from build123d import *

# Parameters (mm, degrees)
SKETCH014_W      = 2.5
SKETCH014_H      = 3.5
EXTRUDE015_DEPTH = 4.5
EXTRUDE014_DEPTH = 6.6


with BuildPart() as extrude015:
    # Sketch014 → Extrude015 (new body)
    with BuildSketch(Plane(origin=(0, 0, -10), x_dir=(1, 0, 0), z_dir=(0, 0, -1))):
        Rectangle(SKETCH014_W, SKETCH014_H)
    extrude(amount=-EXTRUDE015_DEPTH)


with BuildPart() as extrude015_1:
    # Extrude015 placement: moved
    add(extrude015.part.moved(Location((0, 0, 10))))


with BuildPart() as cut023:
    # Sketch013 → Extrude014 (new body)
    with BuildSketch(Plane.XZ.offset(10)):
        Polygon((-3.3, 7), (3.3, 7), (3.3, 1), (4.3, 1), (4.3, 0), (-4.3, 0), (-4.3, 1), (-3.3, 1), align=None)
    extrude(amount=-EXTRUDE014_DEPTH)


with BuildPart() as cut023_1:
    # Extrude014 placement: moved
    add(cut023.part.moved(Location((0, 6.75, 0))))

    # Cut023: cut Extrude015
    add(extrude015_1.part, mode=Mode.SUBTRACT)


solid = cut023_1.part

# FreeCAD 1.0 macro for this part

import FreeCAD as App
import Part
import Sketcher
Q = App.Units.Quantity


def add_polygon(sketch, points):
    """Adds a closed chain of lines whose ends are joined by coincident constraints."""
    first, n = sketch.GeometryCount, len(points)
    for a, b in zip(points, points[1:] + points[:1]):
        sketch.addGeometry(Part.LineSegment(App.Vector(*a, 0), App.Vector(*b, 0)), False)
    for i in range(n):
        sketch.addConstraint(Sketcher.Constraint("Coincident", first + i, 2, first + (i + 1) % n, 1))

doc = App.newDocument("Part")
body = doc.addObject("PartDesign::Body", "Body")

# Sketch on XY plane
sketch1 = body.newObject("Sketcher::SketchObject", "Sketch")
sketch1.AttachmentSupport = (doc.getObject("XY_Plane"), [""])
sketch1.MapMode = "FlatFace"
sketch1.AttachmentOffset = App.Placement(App.Vector(0, 0, -10), App.Rotation())
add_polygon(sketch1, [(-1.2, -1.8), (-1.2, 1.8), (1.2, 1.8), (1.2, -1.8)])  # lines 0-3
sketch1.addConstraint(Sketcher.Constraint("Vertical", 0))
sketch1.addConstraint(Sketcher.Constraint("Horizontal", 1))
sketch1.addConstraint(Sketcher.Constraint("Vertical", 2))
sketch1.addConstraint(Sketcher.Constraint("Horizontal", 3))
sketch1.addConstraint(Sketcher.Constraint("Symmetric", 0, 2, 2, 2, -1, 1))
sketch1.addConstraint(Sketcher.Constraint("DistanceX", 1, 1, 1, 2, Q("2.5 mm")))
sketch1.addConstraint(Sketcher.Constraint("DistanceY", 0, 1, 0, 2, Q("3.5 mm")))
pad1 = body.newObject("PartDesign::Pad", "Pad")
pad1.Profile = sketch1
pad1.Length = 4.5
body2 = doc.addObject("PartDesign::Body", "Body001")
doc.recompute()

body.Placement = App.Placement(App.Vector(0, 0, 10), App.Rotation(App.Vector(0, 0, 1), 0))
boolean = body2.newObject("PartDesign::Boolean", "Boolean")
boolean.Type = "Fuse"
boolean.addObjects([body])
body3 = doc.addObject("PartDesign::Body", "Body002")

# Sketch on XZ plane
sketch2 = body3.newObject("Sketcher::SketchObject", "Sketch001")
sketch2.AttachmentSupport = (doc.getObject("XZ_Plane002"), [""])
sketch2.MapMode = "FlatFace"
sketch2.AttachmentOffset = App.Placement(App.Vector(0, 0, 10), App.Rotation())
add_polygon(sketch2, [(3.3, 7), (-3.3, 7), (-3.3, 1), (-4.3, 1), (-4.3, 0), (4.3, 0), (4.3, 1), (3.3, 1)])  # lines 0-7
sketch2.addConstraint(Sketcher.Constraint("Horizontal", 0))
sketch2.addConstraint(Sketcher.Constraint("Vertical", 1))
sketch2.addConstraint(Sketcher.Constraint("Horizontal", 2))
sketch2.addConstraint(Sketcher.Constraint("Vertical", 3))
sketch2.addConstraint(Sketcher.Constraint("Horizontal", 4))
sketch2.addConstraint(Sketcher.Constraint("Vertical", 5))
sketch2.addConstraint(Sketcher.Constraint("Horizontal", 6))
sketch2.addConstraint(Sketcher.Constraint("Vertical", 7))
sketch2.addConstraint(Sketcher.Constraint("Symmetric", 3, 2, 4, 2, -1, 1))
sketch2.addConstraint(Sketcher.Constraint("Symmetric", 1, 2, 6, 2, -2))
sketch2.addConstraint(Sketcher.Constraint("Equal", 6, 3))
sketch2.addConstraint(Sketcher.Constraint("DistanceX", 2, 2, 2, 1, Q("1 mm")))
sketch2.addConstraint(Sketcher.Constraint("DistanceY", 1, 2, 1, 1, Q("6 mm")))
sketch2.addConstraint(Sketcher.Constraint("DistanceX", 0, 2, 0, 1, Q("6.6 mm")))
pad2 = body3.newObject("PartDesign::Pad", "Pad001")
pad2.Profile = sketch2
pad2.Length = 6.6
pad2.Reversed = True
body4 = doc.addObject("PartDesign::Body", "Body003")
doc.recompute()

body3.Placement = App.Placement(App.Vector(0, 6.75, 0), App.Rotation(App.Vector(0, 0, 1), 0))
boolean2 = body4.newObject("PartDesign::Boolean", "Boolean001")
boolean2.Type = "Fuse"
boolean2.addObjects([body3])
doc.recompute()

boolean3 = body4.newObject("PartDesign::Boolean", "Boolean002")
boolean3.Type = "Cut"
boolean3.addObjects([body2])

doc.recompute()
